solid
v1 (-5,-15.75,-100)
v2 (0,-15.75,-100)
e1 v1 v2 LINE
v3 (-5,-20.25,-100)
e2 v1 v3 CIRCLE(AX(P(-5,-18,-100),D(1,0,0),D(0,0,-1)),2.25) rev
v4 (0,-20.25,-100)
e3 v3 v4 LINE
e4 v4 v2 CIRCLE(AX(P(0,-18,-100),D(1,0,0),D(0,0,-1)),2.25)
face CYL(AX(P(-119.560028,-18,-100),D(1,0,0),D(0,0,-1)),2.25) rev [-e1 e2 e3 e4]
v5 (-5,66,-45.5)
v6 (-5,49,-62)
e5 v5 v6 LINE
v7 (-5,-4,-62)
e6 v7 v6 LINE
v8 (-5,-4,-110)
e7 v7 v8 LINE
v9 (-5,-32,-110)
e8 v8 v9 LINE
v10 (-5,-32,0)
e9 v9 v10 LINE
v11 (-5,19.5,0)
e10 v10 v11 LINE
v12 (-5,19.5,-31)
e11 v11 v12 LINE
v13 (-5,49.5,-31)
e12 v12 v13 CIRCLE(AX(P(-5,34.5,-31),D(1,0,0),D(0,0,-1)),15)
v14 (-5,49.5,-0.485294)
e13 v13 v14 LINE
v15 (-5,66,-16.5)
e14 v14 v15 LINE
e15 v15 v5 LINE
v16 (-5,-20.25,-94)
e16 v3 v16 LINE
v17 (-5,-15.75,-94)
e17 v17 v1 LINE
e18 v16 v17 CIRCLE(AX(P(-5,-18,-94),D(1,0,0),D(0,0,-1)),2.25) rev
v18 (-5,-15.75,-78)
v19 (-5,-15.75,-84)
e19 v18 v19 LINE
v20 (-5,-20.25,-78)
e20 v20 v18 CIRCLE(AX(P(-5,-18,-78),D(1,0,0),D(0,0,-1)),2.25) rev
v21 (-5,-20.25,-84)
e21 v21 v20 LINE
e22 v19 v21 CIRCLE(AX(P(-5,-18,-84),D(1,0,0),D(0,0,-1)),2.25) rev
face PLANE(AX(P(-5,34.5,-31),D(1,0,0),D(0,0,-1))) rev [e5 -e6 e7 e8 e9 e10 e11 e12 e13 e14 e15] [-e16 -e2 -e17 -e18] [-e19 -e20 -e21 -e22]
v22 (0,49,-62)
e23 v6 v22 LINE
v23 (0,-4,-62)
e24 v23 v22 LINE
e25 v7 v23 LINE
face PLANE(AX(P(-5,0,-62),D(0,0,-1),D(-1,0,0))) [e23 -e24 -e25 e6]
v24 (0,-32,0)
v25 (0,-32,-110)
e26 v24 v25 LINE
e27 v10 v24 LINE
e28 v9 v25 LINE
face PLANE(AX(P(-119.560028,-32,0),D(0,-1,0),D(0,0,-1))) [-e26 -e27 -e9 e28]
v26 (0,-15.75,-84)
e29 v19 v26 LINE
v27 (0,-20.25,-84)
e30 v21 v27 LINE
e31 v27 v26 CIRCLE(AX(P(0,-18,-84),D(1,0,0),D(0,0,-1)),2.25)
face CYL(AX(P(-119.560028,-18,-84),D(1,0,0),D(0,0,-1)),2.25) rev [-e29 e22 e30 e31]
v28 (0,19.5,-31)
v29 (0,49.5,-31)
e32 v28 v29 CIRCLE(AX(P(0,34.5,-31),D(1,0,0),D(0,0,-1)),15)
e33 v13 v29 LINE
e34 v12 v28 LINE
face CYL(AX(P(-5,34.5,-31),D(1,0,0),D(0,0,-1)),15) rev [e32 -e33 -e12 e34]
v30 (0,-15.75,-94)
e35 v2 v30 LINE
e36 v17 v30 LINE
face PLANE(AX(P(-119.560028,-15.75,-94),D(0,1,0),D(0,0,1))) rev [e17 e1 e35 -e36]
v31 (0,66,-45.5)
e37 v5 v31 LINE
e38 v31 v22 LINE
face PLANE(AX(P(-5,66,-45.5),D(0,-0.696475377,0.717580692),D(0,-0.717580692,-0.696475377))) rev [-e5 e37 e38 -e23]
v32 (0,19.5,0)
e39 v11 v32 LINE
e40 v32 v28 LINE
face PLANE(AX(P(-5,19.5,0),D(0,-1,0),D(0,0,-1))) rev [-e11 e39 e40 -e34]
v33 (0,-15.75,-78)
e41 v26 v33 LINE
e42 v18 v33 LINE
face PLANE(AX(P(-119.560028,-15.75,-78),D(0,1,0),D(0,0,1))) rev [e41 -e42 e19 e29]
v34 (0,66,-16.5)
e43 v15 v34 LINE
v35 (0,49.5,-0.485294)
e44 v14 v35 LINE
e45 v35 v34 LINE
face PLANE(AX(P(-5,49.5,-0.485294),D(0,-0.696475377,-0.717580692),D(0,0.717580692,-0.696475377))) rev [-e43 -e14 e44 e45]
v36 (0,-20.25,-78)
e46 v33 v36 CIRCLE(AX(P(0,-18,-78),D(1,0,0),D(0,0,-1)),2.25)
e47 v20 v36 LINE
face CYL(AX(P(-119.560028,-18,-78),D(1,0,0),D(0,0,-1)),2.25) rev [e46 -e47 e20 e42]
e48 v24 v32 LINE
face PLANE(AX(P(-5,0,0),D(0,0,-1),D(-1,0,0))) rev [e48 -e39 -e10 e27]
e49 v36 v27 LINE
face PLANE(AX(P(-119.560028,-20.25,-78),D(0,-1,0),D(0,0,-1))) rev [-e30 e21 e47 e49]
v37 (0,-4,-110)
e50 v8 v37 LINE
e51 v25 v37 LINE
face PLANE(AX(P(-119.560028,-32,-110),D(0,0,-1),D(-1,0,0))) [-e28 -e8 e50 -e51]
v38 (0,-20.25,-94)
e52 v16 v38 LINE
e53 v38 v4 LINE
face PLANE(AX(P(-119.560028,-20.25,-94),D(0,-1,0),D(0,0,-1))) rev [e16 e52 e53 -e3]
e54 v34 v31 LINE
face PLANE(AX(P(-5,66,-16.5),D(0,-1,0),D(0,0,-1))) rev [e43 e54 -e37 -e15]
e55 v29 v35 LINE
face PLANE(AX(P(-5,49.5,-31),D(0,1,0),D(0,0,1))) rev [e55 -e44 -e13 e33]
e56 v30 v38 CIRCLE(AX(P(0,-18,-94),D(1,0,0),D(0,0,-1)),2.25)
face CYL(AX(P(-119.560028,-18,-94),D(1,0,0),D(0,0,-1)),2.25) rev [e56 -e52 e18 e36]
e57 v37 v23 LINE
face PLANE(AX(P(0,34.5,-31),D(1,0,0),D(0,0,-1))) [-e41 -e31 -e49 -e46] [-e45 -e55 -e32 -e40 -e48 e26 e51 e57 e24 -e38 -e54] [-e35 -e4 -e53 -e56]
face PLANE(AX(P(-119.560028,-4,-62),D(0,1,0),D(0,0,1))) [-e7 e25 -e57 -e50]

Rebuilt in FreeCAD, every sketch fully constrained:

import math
import FreeCAD as App
import Part
import Sketcher

V = App.Vector


def add_polygon(sketch, points):
    """Adds a closed chain of lines whose ends are joined by coincident constraints."""
    first, n = sketch.GeometryCount, len(points)
    for a, b in zip(points, points[1:] + points[:1]):
        sketch.addGeometry(Part.LineSegment(App.Vector(*a, 0), App.Vector(*b, 0)), False)
    for i in range(n):
        sketch.addConstraint(Sketcher.Constraint("Coincident", first + i, 2, first + (i + 1) % n, 1))

doc = App.newDocument("Part")
body = doc.addObject("PartDesign::Body", "Body")

# Sketch on YZ plane
sketch1 = body.newObject("Sketcher::SketchObject", "Sketch")
sketch1.AttachmentSupport = (doc.getObject("YZ_Plane"), [""])
sketch1.MapMode = "FlatFace"
sketch1.addGeometry(Part.LineSegment(V(66, -16.5, 0), V(49.5, -0.485294, 0)), False)
sketch1.addGeometry(Part.LineSegment(V(49.5, -0.485294, 0), V(49.5, -31, 0)), False)
sketch1.addGeometry(Part.ArcOfCircle(Part.Circle(V(34.5, -31, 0), V(0, 0, 1), 15), math.radians(180), math.radians(360)), False)
sketch1.addGeometry(Part.LineSegment(V(19.5, -31, 0), V(19.5, 0, 0)), False)
sketch1.addGeometry(Part.LineSegment(V(19.5, 0, 0), V(0, 0, 0)), False)
sketch1.addGeometry(Part.LineSegment(V(0, 0, 0), V(0, -62, 0)), False)
sketch1.addGeometry(Part.LineSegment(V(0, -62, 0), V(49, -62, 0)), False)
sketch1.addGeometry(Part.LineSegment(V(49, -62, 0), V(66, -45.5, 0)), False)
sketch1.addGeometry(Part.LineSegment(V(66, -45.5, 0), V(66, -16.5, 0)), False)
sketch1.addConstraint(Sketcher.Constraint("Coincident", 0, 2, 1, 1))
sketch1.addConstraint(Sketcher.Constraint("Tangent", 1, 2, 2, 2))
sketch1.addConstraint(Sketcher.Constraint("Tangent", 2, 1, 3, 1))
sketch1.addConstraint(Sketcher.Constraint("Coincident", 3, 2, 4, 1))
sketch1.addConstraint(Sketcher.Constraint("Coincident", 4, 2, 5, 1))
sketch1.addConstraint(Sketcher.Constraint("Coincident", 5, 2, 6, 1))
sketch1.addConstraint(Sketcher.Constraint("Coincident", 6, 2, 7, 1))
sketch1.addConstraint(Sketcher.Constraint("Coincident", 7, 2, 8, 1))
sketch1.addConstraint(Sketcher.Constraint("Coincident", 8, 2, 0, 1))
sketch1.addConstraint(Sketcher.Constraint("Vertical", 1))
sketch1.addConstraint(Sketcher.Constraint("Vertical", 3))
sketch1.addConstraint(Sketcher.Constraint("Horizontal", 4))
sketch1.addConstraint(Sketcher.Constraint("Vertical", 5))
sketch1.addConstraint(Sketcher.Constraint("Horizontal", 6))
sketch1.addConstraint(Sketcher.Constraint("Vertical", 8))
sketch1.addConstraint(Sketcher.Constraint("Coincident", 4, 2, -1, 1))
sketch1.addConstraint(Sketcher.Constraint("Radius", 2, 15.0))
sketch1.addConstraint(Sketcher.Constraint("DistanceX", 6, 1, 6, 2, 49.0))
sketch1.addConstraint(Sketcher.Constraint("DistanceY", 3, 1, 3, 2, 31.0))
sketch1.addConstraint(Sketcher.Constraint("DistanceY", 5, 2, 5, 1, 62.0))
sketch1.addConstraint(Sketcher.Constraint("DistanceY", 8, 1, 8, 2, 29.0))
sketch1.addConstraint(Sketcher.Constraint("DistanceX", 4, 2, 4, 1, 19.5))
sketch1.addConstraint(Sketcher.Constraint("DistanceX", -1, 1, 7, 2, 66.0))
sketch1.addConstraint(Sketcher.Constraint("DistanceY", 7, 2, -1, 1, 45.5))
sketch1.addConstraint(Sketcher.Constraint("Distance", 0, 22.99393))
pad1 = body.newObject("PartDesign::Pad", "Pad")
pad1.Profile = sketch1
pad1.Length = 5
pad1.Reversed = True

# Sketch on YZ plane
sketch2 = body.newObject("Sketcher::SketchObject", "Sketch001")
sketch2.AttachmentSupport = (doc.getObject("YZ_Plane"), [""])
sketch2.MapMode = "FlatFace"
add_polygon(sketch2, [(0, -62), (0, 0), (-32, 0), (-32, -110), (-4, -110), (-4, -62)])  # lines 0-5
sketch2.addGeometry(Part.LineSegment(V(-15.75, -94, 0), V(-15.75, -100, 0)), False)  # 6
sketch2.addGeometry(Part.ArcOfCircle(Part.Circle(V(-18, -100, 0), V(0, 0, 1), 2.25), math.radians(180), math.radians(360)), False)  # 7
sketch2.addGeometry(Part.LineSegment(V(-20.25, -100, 0), V(-20.25, -94, 0)), False)  # 8
sketch2.addGeometry(Part.ArcOfCircle(Part.Circle(V(-18, -94, 0), V(0, 0, 1), 2.25), math.radians(0), math.radians(180)), False)  # 9
sketch2.addGeometry(Part.LineSegment(V(-15.75, -78, 0), V(-15.75, -84, 0)), False)  # 10
sketch2.addGeometry(Part.ArcOfCircle(Part.Circle(V(-18, -84, 0), V(0, 0, 1), 2.25), math.radians(180), math.radians(360)), False)  # 11
sketch2.addGeometry(Part.LineSegment(V(-20.25, -84, 0), V(-20.25, -78, 0)), False)  # 12
sketch2.addGeometry(Part.ArcOfCircle(Part.Circle(V(-18, -78, 0), V(0, 0, 1), 2.25), math.radians(0), math.radians(180)), False)  # 13
sketch2.addConstraint(Sketcher.Constraint("Tangent", 6, 2, 7, 2))
sketch2.addConstraint(Sketcher.Constraint("Tangent", 7, 1, 8, 1))
sketch2.addConstraint(Sketcher.Constraint("Tangent", 8, 2, 9, 2))
sketch2.addConstraint(Sketcher.Constraint("Tangent", 9, 1, 6, 1))
sketch2.addConstraint(Sketcher.Constraint("Tangent", 10, 2, 11, 2))
sketch2.addConstraint(Sketcher.Constraint("Tangent", 11, 1, 12, 1))
sketch2.addConstraint(Sketcher.Constraint("Tangent", 12, 2, 13, 2))
sketch2.addConstraint(Sketcher.Constraint("Tangent", 13, 1, 10, 1))
sketch2.addConstraint(Sketcher.Constraint("Vertical", 0))
sketch2.addConstraint(Sketcher.Constraint("Horizontal", 1))
sketch2.addConstraint(Sketcher.Constraint("Vertical", 2))
sketch2.addConstraint(Sketcher.Constraint("Horizontal", 3))
sketch2.addConstraint(Sketcher.Constraint("Vertical", 4))
sketch2.addConstraint(Sketcher.Constraint("Horizontal", 5))
sketch2.addConstraint(Sketcher.Constraint("Vertical", 6))
sketch2.addConstraint(Sketcher.Constraint("Vertical", 8))
sketch2.addConstraint(Sketcher.Constraint("Vertical", 10))
sketch2.addConstraint(Sketcher.Constraint("Vertical", 12))
sketch2.addConstraint(Sketcher.Constraint("Coincident", 0, 2, -1, 1))
sketch2.addConstraint(Sketcher.Constraint("Equal", 9, 11))
sketch2.addConstraint(Sketcher.Constraint("Vertical", 9, 3, 11, 3))
sketch2.addConstraint(Sketcher.Constraint("Equal", 8, 10))
sketch2.addConstraint(Sketcher.Constraint("DistanceX", 1, 2, 1, 1, 32.0))
sketch2.addConstraint(Sketcher.Constraint("DistanceX", 3, 1, 3, 2, 28.0))
sketch2.addConstraint(Sketcher.Constraint("DistanceY", 0, 1, 0, 2, 62.0))
sketch2.addConstraint(Sketcher.Constraint("DistanceY", 2, 2, 2, 1, 110.0))
sketch2.addConstraint(Sketcher.Constraint("DistanceY", 6, 2, 6, 1, 6.0))
sketch2.addConstraint(Sketcher.Constraint("Radius", 7, 2.25))
sketch2.addConstraint(Sketcher.Constraint("DistanceX", 7, 3, -1, 1, 18.0))
sketch2.addConstraint(Sketcher.Constraint("DistanceY", 7, 3, -1, 1, 100.0))
sketch2.addConstraint(Sketcher.Constraint("DistanceY", 11, 3, -1, 1, 84.0))
pad2 = body.newObject("PartDesign::Pad", "Pad001")
pad2.Profile = sketch2
pad2.Length = 5
pad2.Reversed = True

doc.recompute()
